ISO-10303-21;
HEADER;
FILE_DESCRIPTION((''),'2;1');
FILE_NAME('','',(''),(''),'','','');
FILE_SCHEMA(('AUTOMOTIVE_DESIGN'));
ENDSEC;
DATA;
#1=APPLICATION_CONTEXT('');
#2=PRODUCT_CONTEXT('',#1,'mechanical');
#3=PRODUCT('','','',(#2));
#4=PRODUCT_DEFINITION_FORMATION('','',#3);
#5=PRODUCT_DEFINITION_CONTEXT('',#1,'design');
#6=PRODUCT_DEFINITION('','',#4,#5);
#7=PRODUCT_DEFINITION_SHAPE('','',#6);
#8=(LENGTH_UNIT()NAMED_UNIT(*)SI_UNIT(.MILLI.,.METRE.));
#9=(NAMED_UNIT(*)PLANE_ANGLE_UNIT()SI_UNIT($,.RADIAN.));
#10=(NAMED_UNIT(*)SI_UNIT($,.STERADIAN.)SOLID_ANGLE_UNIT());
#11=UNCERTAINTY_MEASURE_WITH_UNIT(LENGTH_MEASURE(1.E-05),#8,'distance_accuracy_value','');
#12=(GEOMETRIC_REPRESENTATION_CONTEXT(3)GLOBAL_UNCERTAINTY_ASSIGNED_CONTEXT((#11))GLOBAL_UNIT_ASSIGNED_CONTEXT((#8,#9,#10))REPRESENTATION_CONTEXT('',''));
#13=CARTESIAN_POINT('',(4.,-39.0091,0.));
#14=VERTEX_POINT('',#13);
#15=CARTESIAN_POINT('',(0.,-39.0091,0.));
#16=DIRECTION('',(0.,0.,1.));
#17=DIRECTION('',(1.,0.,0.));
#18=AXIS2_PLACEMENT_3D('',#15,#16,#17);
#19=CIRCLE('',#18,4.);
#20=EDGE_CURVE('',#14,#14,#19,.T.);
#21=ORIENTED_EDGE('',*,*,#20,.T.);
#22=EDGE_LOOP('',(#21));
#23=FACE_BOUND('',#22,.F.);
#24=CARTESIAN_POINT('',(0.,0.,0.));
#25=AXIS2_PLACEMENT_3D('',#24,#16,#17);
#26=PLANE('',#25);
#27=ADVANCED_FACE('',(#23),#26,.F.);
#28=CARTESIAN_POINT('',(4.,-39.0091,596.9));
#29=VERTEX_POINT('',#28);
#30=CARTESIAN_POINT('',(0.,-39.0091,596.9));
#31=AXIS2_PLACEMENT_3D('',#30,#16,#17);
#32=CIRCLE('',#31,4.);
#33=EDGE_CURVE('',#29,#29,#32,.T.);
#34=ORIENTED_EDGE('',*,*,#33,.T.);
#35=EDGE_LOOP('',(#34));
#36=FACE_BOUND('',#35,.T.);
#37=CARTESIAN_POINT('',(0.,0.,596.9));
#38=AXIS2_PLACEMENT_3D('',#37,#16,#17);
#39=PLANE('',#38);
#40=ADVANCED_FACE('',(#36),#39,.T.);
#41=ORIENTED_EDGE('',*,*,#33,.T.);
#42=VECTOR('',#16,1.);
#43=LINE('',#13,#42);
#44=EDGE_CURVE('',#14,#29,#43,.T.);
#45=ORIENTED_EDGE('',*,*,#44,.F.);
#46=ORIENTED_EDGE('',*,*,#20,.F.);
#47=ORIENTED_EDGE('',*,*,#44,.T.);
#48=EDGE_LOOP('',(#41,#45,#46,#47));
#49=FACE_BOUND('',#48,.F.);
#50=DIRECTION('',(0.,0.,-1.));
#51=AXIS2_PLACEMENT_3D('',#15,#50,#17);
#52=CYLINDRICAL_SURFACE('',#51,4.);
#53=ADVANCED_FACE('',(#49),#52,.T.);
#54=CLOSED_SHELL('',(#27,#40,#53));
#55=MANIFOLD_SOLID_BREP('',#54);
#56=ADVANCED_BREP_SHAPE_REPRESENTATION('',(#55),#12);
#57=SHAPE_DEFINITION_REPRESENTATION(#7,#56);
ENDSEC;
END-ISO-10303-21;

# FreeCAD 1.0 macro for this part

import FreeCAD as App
import Part
import Sketcher

V = App.Vector
Q = App.Units.Quantity

doc = App.newDocument("Part")
body = doc.addObject("PartDesign::Body", "Body")

sketch1 = doc.addObject("Sketcher::SketchObject", "Sketch")
body.addObject(sketch1)
sketch1.AttachmentSupport = (doc.XY_Plane, [""])
sketch1.MapMode = "FlatFace"
sketch1.addGeometry(Part.Circle(V(0, -39, 0), V(0, 0, 1), 4), False)
sketch1.addConstraint(Sketcher.Constraint("PointOnObject", 0, 3, -2))
sketch1.addConstraint(Sketcher.Constraint("Diameter", 0, Q("8 mm")))
sketch1.addConstraint(Sketcher.Constraint("DistanceY", 0, 3, -1, 1, Q("39.009 mm")))
pad1 = doc.addObject("PartDesign::Pad", "Pad")
body.addObject(pad1)
pad1.Profile = sketch1
pad1.Length = 596.9

doc.recompute()
